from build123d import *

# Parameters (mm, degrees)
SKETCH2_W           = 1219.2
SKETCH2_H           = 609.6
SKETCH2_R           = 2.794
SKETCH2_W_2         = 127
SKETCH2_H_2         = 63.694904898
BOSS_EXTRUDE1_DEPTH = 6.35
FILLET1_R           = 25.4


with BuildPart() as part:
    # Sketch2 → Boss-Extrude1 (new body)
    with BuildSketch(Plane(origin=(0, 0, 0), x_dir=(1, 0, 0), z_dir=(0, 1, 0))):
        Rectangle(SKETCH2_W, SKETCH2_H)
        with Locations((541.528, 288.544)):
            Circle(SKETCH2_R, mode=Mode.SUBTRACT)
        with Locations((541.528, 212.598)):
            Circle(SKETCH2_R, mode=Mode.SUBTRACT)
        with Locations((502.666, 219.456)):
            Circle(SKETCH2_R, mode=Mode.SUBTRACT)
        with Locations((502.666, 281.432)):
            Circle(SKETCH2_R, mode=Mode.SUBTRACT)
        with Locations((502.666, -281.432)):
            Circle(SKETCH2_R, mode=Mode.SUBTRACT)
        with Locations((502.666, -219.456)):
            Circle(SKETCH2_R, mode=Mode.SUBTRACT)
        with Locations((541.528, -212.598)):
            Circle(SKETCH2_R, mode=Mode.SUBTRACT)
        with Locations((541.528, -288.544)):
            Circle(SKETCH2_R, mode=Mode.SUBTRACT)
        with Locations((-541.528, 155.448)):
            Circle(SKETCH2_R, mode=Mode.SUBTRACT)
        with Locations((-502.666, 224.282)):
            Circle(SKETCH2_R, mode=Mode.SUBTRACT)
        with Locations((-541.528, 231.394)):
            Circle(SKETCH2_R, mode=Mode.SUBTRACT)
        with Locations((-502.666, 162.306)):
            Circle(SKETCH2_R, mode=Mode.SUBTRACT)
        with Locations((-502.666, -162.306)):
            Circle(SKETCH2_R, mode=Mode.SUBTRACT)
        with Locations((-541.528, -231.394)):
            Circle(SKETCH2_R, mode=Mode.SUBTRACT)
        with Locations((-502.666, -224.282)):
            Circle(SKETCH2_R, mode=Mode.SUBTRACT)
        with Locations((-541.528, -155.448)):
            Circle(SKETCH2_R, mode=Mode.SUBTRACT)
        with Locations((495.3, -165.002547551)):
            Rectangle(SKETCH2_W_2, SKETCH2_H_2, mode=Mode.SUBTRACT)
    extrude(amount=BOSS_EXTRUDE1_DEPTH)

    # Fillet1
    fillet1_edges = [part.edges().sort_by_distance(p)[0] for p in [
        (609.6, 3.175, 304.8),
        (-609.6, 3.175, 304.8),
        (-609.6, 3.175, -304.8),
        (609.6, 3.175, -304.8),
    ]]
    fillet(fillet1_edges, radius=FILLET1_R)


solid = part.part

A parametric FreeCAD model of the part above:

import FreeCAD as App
import Part
import Sketcher
from FreeCAD import Vector
Q = App.Units.Quantity


def edges_at(feature, points):
    """Names of the edges that pass closest to the given points."""
    edges = feature.Shape.Edges
    near = lambda p: min(range(len(edges)), key=lambda i: edges[i].distToShape(Part.Vertex(*p))[0])
    return sorted({f"Edge{near(p) + 1}" for p in points})


def add_polygon(sketch, points):
    """Adds a closed chain of lines whose ends are joined by coincident constraints."""
    first, n = sketch.GeometryCount, len(points)
    for a, b in zip(points, points[1:] + points[:1]):
        sketch.addGeometry(Part.LineSegment(App.Vector(*a, 0), App.Vector(*b, 0)), False)
    for i in range(n):
        sketch.addConstraint(Sketcher.Constraint("Coincident", first + i, 2, first + (i + 1) % n, 1))

doc = App.newDocument("Part")
params = doc.addObject("Spreadsheet::Sheet", "Params")
for row, (alias, value) in enumerate([
    ("sketch1_diameter", "0.22 in"),
    ("sketch1_width", "48 in"),
    ("sketch1_width2", "5 in"),
    ("sketch1_height", "24 in"),
    ("pad1_length", "0.25 in"),
    ("fillet_radius", "1 in"),
], start=1):
    params.set(f"A{row}", alias)
    params.set(f"B{row}", "=" + value)
    params.setAlias(f"B{row}", alias)

body = doc.addObject("PartDesign::Body", "Body")

# Sketch on XZ plane
sketch1 = body.newObject("Sketcher::SketchObject", "Sketch")
sketch1.AttachmentSupport = (doc.getObject("XZ_Plane"), [""])
sketch1.MapMode = "FlatFace"
add_polygon(sketch1, [(-609.6, -304.8), (-609.6, 304.8), (609.6, 304.8), (609.6, -304.8)])  # lines 0-3
sketch1.addGeometry(Part.Circle(Vector(-541.5, 231.4, 0), Vector(0, 0, 1), 2.8), False)  # 4
sketch1.addGeometry(Part.Circle(Vector(-502.7, 224.3, 0), Vector(0, 0, 1), 2.8), False)  # 5
sketch1.addGeometry(Part.Circle(Vector(-541.5, 155.4, 0), Vector(0, 0, 1), 2.8), False)  # 6
sketch1.addGeometry(Part.Circle(Vector(-502.7, 162.3, 0), Vector(0, 0, 1), 2.8), False)  # 7
sketch1.addGeometry(Part.Circle(Vector(502.7, 281.4, 0), Vector(0, 0, 1), 2.8), False)  # 8
sketch1.addGeometry(Part.Circle(Vector(541.5, 288.5, 0), Vector(0, 0, 1), 2.8), False)  # 9
sketch1.addGeometry(Part.Circle(Vector(502.7, 219.5, 0), Vector(0, 0, 1), 2.8), False)  # 10
sketch1.addGeometry(Part.Circle(Vector(541.5, 212.6, 0), Vector(0, 0, 1), 2.8), False)  # 11
add_polygon(sketch1, [(558.8, 196.8), (431.8, 196.8), (431.8, 133.2), (558.8, 133.2)])  # lines 12-15
sketch1.addGeometry(Part.Circle(Vector(-541.5, -155.4, 0), Vector(0, 0, 1), 2.8), False)  # 16
sketch1.addGeometry(Part.Circle(Vector(-502.7, -162.3, 0), Vector(0, 0, 1), 2.8), False)  # 17
sketch1.addGeometry(Part.Circle(Vector(-541.5, -231.4, 0), Vector(0, 0, 1), 2.8), False)  # 18
sketch1.addGeometry(Part.Circle(Vector(-502.7, -224.3, 0), Vector(0, 0, 1), 2.8), False)  # 19
sketch1.addGeometry(Part.Circle(Vector(541.5, -212.6, 0), Vector(0, 0, 1), 2.8), False)  # 20
sketch1.addGeometry(Part.Circle(Vector(502.7, -219.5, 0), Vector(0, 0, 1), 2.8), False)  # 21
sketch1.addGeometry(Part.Circle(Vector(502.7, -281.4, 0), Vector(0, 0, 1), 2.8), False)  # 22
sketch1.addGeometry(Part.Circle(Vector(541.5, -288.5, 0), Vector(0, 0, 1), 2.8), False)  # 23
sketch1.addConstraint([
    Sketcher.Constraint("Vertical", 0),
    Sketcher.Constraint("Horizontal", 1),
    Sketcher.Constraint("Vertical", 2),
    Sketcher.Constraint("Horizontal", 3),
    Sketcher.Constraint("Horizontal", 12),
    Sketcher.Constraint("Vertical", 13),
    Sketcher.Constraint("Horizontal", 14),
    Sketcher.Constraint("Vertical", 15),
    Sketcher.Constraint("Equal", 4, 5),
    Sketcher.Constraint("Equal", 5, 6),
    Sketcher.Constraint("Equal", 6, 7),
    Sketcher.Constraint("Equal", 7, 8),
    Sketcher.Constraint("Equal", 8, 9),
    Sketcher.Constraint("Equal", 9, 10),
    Sketcher.Constraint("Equal", 10, 11),
    Sketcher.Constraint("Equal", 11, 16),
    Sketcher.Constraint("Equal", 16, 17),
    Sketcher.Constraint("Equal", 17, 18),
    Sketcher.Constraint("Equal", 18, 19),
    Sketcher.Constraint("Equal", 19, 20),
    Sketcher.Constraint("Equal", 20, 21),
    Sketcher.Constraint("Equal", 21, 22),
    Sketcher.Constraint("Equal", 22, 23),
    Sketcher.Constraint("Symmetric", 0, 2, 2, 2, -1, 1),
    Sketcher.Constraint("Symmetric", 6, 3, 16, 3, -1),
    Sketcher.Constraint("Symmetric", 7, 3, 17, 3, -1),
    Sketcher.Constraint("Symmetric", 4, 3, 18, 3, -1),
    Sketcher.Constraint("Symmetric", 5, 3, 19, 3, -1),
    Sketcher.Constraint("Symmetric", 11, 3, 20, 3, -1),
    Sketcher.Constraint("Symmetric", 10, 3, 21, 3, -1),
    Sketcher.Constraint("Symmetric", 8, 3, 22, 3, -1),
    Sketcher.Constraint("Symmetric", 9, 3, 23, 3, -1),
    Sketcher.Constraint("Vertical", 4, 3, 6, 3),
    Sketcher.Constraint("Vertical", 5, 3, 7, 3),
    Sketcher.Constraint("Vertical", 8, 3, 10, 3),
    Sketcher.Constraint("Vertical", 9, 3, 11, 3),
    Sketcher.Constraint("Diameter", 4, Q("0.22 in")),
    Sketcher.Constraint("DistanceX", 1, 1, 1, 2, Q("48 in")),
    Sketcher.Constraint("DistanceX", 12, 2, 12, 1, Q("5 in")),
    Sketcher.Constraint("DistanceY", 0, 1, 0, 2, Q("24 in")),
    Sketcher.Constraint("DistanceX", -1, 1, 12, 2, Q("17 in")),
    Sketcher.Constraint("DistanceY", 21, 3, 9, 3, Q("20 in")),
    Sketcher.Constraint("DistanceY", 17, 3, 4, 3, Q("15.5 in")),
    Sketcher.Constraint("DistanceX", 4, 3, -1, 1, Q("21.32 in")),
    Sketcher.Constraint("DistanceY", -1, 1, 4, 3, Q("9.11 in")),
    Sketcher.Constraint("DistanceX", 5, 3, -1, 1, Q("19.79 in")),
    Sketcher.Constraint("DistanceY", -1, 1, 5, 3, Q("8.83 in")),
    Sketcher.Constraint("DistanceY", -1, 1, 6, 3, Q("6.12 in")),
    Sketcher.Constraint("DistanceX", -1, 1, 8, 3, Q("19.79 in")),
    Sketcher.Constraint("DistanceY", -1, 1, 8, 3, Q("11.08 in")),
    Sketcher.Constraint("DistanceX", -1, 1, 9, 3, Q("21.32 in")),
    Sketcher.Constraint("DistanceY", -1, 1, 9, 3, Q("11.36 in")),
    Sketcher.Constraint("DistanceY", -1, 1, 11, 3, Q("8.37 in")),
    Sketcher.Constraint("DistanceY", -1, 1, 12, 2, Q("7.75 in")),
    Sketcher.Constraint("DistanceY", 13, 2, 13, 1, 63.694905),
])
sketch1.setExpression("Constraints[44]", "Params.sketch1_diameter")
sketch1.setExpression("Constraints[45]", "Params.sketch1_width")
sketch1.setExpression("Constraints[46]", "Params.sketch1_width2")
sketch1.setExpression("Constraints[47]", "Params.sketch1_height")
pad1 = body.newObject("PartDesign::Pad", "Pad")
pad1.Profile = sketch1
pad1.setExpression("Length", "Params.pad1_length")
pad1.Reversed = True
doc.recompute()

fillet = body.newObject("PartDesign::Fillet", "Fillet")
fillet.Base = (pad1, edges_at(pad1, [
    (609.6, 3.175, 304.8),
    (-609.6, 3.175, 304.8),
    (-609.6, 3.175, -304.8),
    (609.6, 3.175, -304.8),
]))
fillet.setExpression("Radius", "Params.fillet_radius")

doc.recompute()
